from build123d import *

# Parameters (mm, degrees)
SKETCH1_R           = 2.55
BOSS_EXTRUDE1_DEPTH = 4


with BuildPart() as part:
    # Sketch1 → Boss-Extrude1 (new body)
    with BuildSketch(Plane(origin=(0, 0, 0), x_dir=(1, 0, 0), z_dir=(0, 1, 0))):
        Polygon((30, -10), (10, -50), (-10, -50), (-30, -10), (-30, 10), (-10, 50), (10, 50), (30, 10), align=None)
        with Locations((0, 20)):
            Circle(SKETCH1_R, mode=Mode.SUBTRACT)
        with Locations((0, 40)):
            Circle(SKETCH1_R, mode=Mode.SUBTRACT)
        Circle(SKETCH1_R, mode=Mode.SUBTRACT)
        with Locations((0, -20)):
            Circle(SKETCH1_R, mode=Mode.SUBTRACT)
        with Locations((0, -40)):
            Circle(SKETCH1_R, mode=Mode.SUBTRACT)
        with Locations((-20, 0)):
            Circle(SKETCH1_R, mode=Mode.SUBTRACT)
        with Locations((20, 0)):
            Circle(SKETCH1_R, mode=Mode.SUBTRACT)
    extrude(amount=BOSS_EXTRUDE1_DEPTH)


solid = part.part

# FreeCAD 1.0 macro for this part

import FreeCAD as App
import Part
import Sketcher
from FreeCAD import Vector
Q = App.Units.Quantity


def add_polygon(sketch, points):
    """Adds a closed chain of lines whose ends are joined by coincident constraints."""
    first, n = sketch.GeometryCount, len(points)
    for a, b in zip(points, points[1:] + points[:1]):
        sketch.addGeometry(Part.LineSegment(App.Vector(*a, 0), App.Vector(*b, 0)), False)
    for i in range(n):
        sketch.addConstraint(Sketcher.Constraint("Coincident", first + i, 2, first + (i + 1) % n, 1))

doc = App.newDocument("Part")
body = doc.addObject("PartDesign::Body", "Body")

sketch1 = body.newObject("Sketcher::SketchObject", "Sketch")
sketch1.AttachmentSupport = (doc.getObject("XZ_Plane"), [""])
sketch1.MapMode = "FlatFace"
add_polygon(sketch1, [(10, 50), (30, 10), (30, -10), (10, -50), (-10, -50), (-30, -10), (-30, 10), (-10, 50)])
sketch1.addGeometry(Part.Circle(Vector(20, 0, 0), Vector(0, 0, 1), 2.5), False)
sketch1.addGeometry(Part.Circle(Vector(0, 40, 0), Vector(0, 0, 1), 2.5), False)
sketch1.addGeometry(Part.Circle(Vector(0, 20, 0), Vector(0, 0, 1), 2.5), False)
sketch1.addGeometry(Part.Circle(Vector(0, 0, 0), Vector(0, 0, 1), 2.5), False)
sketch1.addGeometry(Part.Circle(Vector(-20, 0, 0), Vector(0, 0, 1), 2.5), False)
sketch1.addGeometry(Part.Circle(Vector(0, -20, 0), Vector(0, 0, 1), 2.5), False)
sketch1.addGeometry(Part.Circle(Vector(0, -40, 0), Vector(0, 0, 1), 2.5), False)
sketch1.addConstraint([
    Sketcher.Constraint("Vertical", 1),
    Sketcher.Constraint("Horizontal", 3),
    Sketcher.Constraint("Vertical", 5),
    Sketcher.Constraint("Horizontal", 7),
    Sketcher.Constraint("Coincident", 11, 3, -1, 1),
    Sketcher.Constraint("Equal", 8, 9),
    Sketcher.Constraint("Equal", 9, 10),
    Sketcher.Constraint("Equal", 10, 11),
    Sketcher.Constraint("Equal", 11, 12),
    Sketcher.Constraint("Equal", 12, 13),
    Sketcher.Constraint("Equal", 13, 14),
    Sketcher.Constraint("Symmetric", 8, 3, 12, 3, -1, 1),
    Sketcher.Constraint("Symmetric", 10, 3, 13, 3, -1, 1),
    Sketcher.Constraint("Symmetric", 9, 3, 14, 3, -1, 1),
    Sketcher.Constraint("Symmetric", 0, 2, 4, 2, -1, 1),
    Sketcher.Constraint("Symmetric", 2, 2, 6, 2, -1, 1),
    Sketcher.Constraint("PointOnObject", 8, 3, -1),
    Sketcher.Constraint("PointOnObject", 9, 3, -2),
    Sketcher.Constraint("PointOnObject", 10, 3, -2),
    Sketcher.Constraint("Parallel", 0, 4),
    Sketcher.Constraint("Parallel", 2, 6),
    Sketcher.Constraint("Horizontal", 1, 2, 4, 2),
    Sketcher.Constraint("Vertical", 3, 2, 6, 2),
    Sketcher.Constraint("Equal", 7, 1),
    Sketcher.Constraint("Diameter", 8, Q("5.1 mm")),
    Sketcher.Constraint("DistanceX", 3, 2, 3, 1, Q("20 mm")),
    Sketcher.Constraint("DistanceX", -1, 1, 8, 3, Q("20 mm")),
    Sketcher.Constraint("DistanceY", -1, 1, 9, 3, Q("40 mm")),
    Sketcher.Constraint("DistanceY", -1, 1, 10, 3, Q("20 mm")),
    Sketcher.Constraint("DistanceX", -1, 1, 0, 2, Q("30 mm")),
    Sketcher.Constraint("DistanceY", 2, 2, -1, 1, Q("50 mm")),
])
pad1 = body.newObject("PartDesign::Pad", "Pad")
pad1.Profile = sketch1
pad1.Length = 4
pad1.Reversed = True

doc.recompute()
